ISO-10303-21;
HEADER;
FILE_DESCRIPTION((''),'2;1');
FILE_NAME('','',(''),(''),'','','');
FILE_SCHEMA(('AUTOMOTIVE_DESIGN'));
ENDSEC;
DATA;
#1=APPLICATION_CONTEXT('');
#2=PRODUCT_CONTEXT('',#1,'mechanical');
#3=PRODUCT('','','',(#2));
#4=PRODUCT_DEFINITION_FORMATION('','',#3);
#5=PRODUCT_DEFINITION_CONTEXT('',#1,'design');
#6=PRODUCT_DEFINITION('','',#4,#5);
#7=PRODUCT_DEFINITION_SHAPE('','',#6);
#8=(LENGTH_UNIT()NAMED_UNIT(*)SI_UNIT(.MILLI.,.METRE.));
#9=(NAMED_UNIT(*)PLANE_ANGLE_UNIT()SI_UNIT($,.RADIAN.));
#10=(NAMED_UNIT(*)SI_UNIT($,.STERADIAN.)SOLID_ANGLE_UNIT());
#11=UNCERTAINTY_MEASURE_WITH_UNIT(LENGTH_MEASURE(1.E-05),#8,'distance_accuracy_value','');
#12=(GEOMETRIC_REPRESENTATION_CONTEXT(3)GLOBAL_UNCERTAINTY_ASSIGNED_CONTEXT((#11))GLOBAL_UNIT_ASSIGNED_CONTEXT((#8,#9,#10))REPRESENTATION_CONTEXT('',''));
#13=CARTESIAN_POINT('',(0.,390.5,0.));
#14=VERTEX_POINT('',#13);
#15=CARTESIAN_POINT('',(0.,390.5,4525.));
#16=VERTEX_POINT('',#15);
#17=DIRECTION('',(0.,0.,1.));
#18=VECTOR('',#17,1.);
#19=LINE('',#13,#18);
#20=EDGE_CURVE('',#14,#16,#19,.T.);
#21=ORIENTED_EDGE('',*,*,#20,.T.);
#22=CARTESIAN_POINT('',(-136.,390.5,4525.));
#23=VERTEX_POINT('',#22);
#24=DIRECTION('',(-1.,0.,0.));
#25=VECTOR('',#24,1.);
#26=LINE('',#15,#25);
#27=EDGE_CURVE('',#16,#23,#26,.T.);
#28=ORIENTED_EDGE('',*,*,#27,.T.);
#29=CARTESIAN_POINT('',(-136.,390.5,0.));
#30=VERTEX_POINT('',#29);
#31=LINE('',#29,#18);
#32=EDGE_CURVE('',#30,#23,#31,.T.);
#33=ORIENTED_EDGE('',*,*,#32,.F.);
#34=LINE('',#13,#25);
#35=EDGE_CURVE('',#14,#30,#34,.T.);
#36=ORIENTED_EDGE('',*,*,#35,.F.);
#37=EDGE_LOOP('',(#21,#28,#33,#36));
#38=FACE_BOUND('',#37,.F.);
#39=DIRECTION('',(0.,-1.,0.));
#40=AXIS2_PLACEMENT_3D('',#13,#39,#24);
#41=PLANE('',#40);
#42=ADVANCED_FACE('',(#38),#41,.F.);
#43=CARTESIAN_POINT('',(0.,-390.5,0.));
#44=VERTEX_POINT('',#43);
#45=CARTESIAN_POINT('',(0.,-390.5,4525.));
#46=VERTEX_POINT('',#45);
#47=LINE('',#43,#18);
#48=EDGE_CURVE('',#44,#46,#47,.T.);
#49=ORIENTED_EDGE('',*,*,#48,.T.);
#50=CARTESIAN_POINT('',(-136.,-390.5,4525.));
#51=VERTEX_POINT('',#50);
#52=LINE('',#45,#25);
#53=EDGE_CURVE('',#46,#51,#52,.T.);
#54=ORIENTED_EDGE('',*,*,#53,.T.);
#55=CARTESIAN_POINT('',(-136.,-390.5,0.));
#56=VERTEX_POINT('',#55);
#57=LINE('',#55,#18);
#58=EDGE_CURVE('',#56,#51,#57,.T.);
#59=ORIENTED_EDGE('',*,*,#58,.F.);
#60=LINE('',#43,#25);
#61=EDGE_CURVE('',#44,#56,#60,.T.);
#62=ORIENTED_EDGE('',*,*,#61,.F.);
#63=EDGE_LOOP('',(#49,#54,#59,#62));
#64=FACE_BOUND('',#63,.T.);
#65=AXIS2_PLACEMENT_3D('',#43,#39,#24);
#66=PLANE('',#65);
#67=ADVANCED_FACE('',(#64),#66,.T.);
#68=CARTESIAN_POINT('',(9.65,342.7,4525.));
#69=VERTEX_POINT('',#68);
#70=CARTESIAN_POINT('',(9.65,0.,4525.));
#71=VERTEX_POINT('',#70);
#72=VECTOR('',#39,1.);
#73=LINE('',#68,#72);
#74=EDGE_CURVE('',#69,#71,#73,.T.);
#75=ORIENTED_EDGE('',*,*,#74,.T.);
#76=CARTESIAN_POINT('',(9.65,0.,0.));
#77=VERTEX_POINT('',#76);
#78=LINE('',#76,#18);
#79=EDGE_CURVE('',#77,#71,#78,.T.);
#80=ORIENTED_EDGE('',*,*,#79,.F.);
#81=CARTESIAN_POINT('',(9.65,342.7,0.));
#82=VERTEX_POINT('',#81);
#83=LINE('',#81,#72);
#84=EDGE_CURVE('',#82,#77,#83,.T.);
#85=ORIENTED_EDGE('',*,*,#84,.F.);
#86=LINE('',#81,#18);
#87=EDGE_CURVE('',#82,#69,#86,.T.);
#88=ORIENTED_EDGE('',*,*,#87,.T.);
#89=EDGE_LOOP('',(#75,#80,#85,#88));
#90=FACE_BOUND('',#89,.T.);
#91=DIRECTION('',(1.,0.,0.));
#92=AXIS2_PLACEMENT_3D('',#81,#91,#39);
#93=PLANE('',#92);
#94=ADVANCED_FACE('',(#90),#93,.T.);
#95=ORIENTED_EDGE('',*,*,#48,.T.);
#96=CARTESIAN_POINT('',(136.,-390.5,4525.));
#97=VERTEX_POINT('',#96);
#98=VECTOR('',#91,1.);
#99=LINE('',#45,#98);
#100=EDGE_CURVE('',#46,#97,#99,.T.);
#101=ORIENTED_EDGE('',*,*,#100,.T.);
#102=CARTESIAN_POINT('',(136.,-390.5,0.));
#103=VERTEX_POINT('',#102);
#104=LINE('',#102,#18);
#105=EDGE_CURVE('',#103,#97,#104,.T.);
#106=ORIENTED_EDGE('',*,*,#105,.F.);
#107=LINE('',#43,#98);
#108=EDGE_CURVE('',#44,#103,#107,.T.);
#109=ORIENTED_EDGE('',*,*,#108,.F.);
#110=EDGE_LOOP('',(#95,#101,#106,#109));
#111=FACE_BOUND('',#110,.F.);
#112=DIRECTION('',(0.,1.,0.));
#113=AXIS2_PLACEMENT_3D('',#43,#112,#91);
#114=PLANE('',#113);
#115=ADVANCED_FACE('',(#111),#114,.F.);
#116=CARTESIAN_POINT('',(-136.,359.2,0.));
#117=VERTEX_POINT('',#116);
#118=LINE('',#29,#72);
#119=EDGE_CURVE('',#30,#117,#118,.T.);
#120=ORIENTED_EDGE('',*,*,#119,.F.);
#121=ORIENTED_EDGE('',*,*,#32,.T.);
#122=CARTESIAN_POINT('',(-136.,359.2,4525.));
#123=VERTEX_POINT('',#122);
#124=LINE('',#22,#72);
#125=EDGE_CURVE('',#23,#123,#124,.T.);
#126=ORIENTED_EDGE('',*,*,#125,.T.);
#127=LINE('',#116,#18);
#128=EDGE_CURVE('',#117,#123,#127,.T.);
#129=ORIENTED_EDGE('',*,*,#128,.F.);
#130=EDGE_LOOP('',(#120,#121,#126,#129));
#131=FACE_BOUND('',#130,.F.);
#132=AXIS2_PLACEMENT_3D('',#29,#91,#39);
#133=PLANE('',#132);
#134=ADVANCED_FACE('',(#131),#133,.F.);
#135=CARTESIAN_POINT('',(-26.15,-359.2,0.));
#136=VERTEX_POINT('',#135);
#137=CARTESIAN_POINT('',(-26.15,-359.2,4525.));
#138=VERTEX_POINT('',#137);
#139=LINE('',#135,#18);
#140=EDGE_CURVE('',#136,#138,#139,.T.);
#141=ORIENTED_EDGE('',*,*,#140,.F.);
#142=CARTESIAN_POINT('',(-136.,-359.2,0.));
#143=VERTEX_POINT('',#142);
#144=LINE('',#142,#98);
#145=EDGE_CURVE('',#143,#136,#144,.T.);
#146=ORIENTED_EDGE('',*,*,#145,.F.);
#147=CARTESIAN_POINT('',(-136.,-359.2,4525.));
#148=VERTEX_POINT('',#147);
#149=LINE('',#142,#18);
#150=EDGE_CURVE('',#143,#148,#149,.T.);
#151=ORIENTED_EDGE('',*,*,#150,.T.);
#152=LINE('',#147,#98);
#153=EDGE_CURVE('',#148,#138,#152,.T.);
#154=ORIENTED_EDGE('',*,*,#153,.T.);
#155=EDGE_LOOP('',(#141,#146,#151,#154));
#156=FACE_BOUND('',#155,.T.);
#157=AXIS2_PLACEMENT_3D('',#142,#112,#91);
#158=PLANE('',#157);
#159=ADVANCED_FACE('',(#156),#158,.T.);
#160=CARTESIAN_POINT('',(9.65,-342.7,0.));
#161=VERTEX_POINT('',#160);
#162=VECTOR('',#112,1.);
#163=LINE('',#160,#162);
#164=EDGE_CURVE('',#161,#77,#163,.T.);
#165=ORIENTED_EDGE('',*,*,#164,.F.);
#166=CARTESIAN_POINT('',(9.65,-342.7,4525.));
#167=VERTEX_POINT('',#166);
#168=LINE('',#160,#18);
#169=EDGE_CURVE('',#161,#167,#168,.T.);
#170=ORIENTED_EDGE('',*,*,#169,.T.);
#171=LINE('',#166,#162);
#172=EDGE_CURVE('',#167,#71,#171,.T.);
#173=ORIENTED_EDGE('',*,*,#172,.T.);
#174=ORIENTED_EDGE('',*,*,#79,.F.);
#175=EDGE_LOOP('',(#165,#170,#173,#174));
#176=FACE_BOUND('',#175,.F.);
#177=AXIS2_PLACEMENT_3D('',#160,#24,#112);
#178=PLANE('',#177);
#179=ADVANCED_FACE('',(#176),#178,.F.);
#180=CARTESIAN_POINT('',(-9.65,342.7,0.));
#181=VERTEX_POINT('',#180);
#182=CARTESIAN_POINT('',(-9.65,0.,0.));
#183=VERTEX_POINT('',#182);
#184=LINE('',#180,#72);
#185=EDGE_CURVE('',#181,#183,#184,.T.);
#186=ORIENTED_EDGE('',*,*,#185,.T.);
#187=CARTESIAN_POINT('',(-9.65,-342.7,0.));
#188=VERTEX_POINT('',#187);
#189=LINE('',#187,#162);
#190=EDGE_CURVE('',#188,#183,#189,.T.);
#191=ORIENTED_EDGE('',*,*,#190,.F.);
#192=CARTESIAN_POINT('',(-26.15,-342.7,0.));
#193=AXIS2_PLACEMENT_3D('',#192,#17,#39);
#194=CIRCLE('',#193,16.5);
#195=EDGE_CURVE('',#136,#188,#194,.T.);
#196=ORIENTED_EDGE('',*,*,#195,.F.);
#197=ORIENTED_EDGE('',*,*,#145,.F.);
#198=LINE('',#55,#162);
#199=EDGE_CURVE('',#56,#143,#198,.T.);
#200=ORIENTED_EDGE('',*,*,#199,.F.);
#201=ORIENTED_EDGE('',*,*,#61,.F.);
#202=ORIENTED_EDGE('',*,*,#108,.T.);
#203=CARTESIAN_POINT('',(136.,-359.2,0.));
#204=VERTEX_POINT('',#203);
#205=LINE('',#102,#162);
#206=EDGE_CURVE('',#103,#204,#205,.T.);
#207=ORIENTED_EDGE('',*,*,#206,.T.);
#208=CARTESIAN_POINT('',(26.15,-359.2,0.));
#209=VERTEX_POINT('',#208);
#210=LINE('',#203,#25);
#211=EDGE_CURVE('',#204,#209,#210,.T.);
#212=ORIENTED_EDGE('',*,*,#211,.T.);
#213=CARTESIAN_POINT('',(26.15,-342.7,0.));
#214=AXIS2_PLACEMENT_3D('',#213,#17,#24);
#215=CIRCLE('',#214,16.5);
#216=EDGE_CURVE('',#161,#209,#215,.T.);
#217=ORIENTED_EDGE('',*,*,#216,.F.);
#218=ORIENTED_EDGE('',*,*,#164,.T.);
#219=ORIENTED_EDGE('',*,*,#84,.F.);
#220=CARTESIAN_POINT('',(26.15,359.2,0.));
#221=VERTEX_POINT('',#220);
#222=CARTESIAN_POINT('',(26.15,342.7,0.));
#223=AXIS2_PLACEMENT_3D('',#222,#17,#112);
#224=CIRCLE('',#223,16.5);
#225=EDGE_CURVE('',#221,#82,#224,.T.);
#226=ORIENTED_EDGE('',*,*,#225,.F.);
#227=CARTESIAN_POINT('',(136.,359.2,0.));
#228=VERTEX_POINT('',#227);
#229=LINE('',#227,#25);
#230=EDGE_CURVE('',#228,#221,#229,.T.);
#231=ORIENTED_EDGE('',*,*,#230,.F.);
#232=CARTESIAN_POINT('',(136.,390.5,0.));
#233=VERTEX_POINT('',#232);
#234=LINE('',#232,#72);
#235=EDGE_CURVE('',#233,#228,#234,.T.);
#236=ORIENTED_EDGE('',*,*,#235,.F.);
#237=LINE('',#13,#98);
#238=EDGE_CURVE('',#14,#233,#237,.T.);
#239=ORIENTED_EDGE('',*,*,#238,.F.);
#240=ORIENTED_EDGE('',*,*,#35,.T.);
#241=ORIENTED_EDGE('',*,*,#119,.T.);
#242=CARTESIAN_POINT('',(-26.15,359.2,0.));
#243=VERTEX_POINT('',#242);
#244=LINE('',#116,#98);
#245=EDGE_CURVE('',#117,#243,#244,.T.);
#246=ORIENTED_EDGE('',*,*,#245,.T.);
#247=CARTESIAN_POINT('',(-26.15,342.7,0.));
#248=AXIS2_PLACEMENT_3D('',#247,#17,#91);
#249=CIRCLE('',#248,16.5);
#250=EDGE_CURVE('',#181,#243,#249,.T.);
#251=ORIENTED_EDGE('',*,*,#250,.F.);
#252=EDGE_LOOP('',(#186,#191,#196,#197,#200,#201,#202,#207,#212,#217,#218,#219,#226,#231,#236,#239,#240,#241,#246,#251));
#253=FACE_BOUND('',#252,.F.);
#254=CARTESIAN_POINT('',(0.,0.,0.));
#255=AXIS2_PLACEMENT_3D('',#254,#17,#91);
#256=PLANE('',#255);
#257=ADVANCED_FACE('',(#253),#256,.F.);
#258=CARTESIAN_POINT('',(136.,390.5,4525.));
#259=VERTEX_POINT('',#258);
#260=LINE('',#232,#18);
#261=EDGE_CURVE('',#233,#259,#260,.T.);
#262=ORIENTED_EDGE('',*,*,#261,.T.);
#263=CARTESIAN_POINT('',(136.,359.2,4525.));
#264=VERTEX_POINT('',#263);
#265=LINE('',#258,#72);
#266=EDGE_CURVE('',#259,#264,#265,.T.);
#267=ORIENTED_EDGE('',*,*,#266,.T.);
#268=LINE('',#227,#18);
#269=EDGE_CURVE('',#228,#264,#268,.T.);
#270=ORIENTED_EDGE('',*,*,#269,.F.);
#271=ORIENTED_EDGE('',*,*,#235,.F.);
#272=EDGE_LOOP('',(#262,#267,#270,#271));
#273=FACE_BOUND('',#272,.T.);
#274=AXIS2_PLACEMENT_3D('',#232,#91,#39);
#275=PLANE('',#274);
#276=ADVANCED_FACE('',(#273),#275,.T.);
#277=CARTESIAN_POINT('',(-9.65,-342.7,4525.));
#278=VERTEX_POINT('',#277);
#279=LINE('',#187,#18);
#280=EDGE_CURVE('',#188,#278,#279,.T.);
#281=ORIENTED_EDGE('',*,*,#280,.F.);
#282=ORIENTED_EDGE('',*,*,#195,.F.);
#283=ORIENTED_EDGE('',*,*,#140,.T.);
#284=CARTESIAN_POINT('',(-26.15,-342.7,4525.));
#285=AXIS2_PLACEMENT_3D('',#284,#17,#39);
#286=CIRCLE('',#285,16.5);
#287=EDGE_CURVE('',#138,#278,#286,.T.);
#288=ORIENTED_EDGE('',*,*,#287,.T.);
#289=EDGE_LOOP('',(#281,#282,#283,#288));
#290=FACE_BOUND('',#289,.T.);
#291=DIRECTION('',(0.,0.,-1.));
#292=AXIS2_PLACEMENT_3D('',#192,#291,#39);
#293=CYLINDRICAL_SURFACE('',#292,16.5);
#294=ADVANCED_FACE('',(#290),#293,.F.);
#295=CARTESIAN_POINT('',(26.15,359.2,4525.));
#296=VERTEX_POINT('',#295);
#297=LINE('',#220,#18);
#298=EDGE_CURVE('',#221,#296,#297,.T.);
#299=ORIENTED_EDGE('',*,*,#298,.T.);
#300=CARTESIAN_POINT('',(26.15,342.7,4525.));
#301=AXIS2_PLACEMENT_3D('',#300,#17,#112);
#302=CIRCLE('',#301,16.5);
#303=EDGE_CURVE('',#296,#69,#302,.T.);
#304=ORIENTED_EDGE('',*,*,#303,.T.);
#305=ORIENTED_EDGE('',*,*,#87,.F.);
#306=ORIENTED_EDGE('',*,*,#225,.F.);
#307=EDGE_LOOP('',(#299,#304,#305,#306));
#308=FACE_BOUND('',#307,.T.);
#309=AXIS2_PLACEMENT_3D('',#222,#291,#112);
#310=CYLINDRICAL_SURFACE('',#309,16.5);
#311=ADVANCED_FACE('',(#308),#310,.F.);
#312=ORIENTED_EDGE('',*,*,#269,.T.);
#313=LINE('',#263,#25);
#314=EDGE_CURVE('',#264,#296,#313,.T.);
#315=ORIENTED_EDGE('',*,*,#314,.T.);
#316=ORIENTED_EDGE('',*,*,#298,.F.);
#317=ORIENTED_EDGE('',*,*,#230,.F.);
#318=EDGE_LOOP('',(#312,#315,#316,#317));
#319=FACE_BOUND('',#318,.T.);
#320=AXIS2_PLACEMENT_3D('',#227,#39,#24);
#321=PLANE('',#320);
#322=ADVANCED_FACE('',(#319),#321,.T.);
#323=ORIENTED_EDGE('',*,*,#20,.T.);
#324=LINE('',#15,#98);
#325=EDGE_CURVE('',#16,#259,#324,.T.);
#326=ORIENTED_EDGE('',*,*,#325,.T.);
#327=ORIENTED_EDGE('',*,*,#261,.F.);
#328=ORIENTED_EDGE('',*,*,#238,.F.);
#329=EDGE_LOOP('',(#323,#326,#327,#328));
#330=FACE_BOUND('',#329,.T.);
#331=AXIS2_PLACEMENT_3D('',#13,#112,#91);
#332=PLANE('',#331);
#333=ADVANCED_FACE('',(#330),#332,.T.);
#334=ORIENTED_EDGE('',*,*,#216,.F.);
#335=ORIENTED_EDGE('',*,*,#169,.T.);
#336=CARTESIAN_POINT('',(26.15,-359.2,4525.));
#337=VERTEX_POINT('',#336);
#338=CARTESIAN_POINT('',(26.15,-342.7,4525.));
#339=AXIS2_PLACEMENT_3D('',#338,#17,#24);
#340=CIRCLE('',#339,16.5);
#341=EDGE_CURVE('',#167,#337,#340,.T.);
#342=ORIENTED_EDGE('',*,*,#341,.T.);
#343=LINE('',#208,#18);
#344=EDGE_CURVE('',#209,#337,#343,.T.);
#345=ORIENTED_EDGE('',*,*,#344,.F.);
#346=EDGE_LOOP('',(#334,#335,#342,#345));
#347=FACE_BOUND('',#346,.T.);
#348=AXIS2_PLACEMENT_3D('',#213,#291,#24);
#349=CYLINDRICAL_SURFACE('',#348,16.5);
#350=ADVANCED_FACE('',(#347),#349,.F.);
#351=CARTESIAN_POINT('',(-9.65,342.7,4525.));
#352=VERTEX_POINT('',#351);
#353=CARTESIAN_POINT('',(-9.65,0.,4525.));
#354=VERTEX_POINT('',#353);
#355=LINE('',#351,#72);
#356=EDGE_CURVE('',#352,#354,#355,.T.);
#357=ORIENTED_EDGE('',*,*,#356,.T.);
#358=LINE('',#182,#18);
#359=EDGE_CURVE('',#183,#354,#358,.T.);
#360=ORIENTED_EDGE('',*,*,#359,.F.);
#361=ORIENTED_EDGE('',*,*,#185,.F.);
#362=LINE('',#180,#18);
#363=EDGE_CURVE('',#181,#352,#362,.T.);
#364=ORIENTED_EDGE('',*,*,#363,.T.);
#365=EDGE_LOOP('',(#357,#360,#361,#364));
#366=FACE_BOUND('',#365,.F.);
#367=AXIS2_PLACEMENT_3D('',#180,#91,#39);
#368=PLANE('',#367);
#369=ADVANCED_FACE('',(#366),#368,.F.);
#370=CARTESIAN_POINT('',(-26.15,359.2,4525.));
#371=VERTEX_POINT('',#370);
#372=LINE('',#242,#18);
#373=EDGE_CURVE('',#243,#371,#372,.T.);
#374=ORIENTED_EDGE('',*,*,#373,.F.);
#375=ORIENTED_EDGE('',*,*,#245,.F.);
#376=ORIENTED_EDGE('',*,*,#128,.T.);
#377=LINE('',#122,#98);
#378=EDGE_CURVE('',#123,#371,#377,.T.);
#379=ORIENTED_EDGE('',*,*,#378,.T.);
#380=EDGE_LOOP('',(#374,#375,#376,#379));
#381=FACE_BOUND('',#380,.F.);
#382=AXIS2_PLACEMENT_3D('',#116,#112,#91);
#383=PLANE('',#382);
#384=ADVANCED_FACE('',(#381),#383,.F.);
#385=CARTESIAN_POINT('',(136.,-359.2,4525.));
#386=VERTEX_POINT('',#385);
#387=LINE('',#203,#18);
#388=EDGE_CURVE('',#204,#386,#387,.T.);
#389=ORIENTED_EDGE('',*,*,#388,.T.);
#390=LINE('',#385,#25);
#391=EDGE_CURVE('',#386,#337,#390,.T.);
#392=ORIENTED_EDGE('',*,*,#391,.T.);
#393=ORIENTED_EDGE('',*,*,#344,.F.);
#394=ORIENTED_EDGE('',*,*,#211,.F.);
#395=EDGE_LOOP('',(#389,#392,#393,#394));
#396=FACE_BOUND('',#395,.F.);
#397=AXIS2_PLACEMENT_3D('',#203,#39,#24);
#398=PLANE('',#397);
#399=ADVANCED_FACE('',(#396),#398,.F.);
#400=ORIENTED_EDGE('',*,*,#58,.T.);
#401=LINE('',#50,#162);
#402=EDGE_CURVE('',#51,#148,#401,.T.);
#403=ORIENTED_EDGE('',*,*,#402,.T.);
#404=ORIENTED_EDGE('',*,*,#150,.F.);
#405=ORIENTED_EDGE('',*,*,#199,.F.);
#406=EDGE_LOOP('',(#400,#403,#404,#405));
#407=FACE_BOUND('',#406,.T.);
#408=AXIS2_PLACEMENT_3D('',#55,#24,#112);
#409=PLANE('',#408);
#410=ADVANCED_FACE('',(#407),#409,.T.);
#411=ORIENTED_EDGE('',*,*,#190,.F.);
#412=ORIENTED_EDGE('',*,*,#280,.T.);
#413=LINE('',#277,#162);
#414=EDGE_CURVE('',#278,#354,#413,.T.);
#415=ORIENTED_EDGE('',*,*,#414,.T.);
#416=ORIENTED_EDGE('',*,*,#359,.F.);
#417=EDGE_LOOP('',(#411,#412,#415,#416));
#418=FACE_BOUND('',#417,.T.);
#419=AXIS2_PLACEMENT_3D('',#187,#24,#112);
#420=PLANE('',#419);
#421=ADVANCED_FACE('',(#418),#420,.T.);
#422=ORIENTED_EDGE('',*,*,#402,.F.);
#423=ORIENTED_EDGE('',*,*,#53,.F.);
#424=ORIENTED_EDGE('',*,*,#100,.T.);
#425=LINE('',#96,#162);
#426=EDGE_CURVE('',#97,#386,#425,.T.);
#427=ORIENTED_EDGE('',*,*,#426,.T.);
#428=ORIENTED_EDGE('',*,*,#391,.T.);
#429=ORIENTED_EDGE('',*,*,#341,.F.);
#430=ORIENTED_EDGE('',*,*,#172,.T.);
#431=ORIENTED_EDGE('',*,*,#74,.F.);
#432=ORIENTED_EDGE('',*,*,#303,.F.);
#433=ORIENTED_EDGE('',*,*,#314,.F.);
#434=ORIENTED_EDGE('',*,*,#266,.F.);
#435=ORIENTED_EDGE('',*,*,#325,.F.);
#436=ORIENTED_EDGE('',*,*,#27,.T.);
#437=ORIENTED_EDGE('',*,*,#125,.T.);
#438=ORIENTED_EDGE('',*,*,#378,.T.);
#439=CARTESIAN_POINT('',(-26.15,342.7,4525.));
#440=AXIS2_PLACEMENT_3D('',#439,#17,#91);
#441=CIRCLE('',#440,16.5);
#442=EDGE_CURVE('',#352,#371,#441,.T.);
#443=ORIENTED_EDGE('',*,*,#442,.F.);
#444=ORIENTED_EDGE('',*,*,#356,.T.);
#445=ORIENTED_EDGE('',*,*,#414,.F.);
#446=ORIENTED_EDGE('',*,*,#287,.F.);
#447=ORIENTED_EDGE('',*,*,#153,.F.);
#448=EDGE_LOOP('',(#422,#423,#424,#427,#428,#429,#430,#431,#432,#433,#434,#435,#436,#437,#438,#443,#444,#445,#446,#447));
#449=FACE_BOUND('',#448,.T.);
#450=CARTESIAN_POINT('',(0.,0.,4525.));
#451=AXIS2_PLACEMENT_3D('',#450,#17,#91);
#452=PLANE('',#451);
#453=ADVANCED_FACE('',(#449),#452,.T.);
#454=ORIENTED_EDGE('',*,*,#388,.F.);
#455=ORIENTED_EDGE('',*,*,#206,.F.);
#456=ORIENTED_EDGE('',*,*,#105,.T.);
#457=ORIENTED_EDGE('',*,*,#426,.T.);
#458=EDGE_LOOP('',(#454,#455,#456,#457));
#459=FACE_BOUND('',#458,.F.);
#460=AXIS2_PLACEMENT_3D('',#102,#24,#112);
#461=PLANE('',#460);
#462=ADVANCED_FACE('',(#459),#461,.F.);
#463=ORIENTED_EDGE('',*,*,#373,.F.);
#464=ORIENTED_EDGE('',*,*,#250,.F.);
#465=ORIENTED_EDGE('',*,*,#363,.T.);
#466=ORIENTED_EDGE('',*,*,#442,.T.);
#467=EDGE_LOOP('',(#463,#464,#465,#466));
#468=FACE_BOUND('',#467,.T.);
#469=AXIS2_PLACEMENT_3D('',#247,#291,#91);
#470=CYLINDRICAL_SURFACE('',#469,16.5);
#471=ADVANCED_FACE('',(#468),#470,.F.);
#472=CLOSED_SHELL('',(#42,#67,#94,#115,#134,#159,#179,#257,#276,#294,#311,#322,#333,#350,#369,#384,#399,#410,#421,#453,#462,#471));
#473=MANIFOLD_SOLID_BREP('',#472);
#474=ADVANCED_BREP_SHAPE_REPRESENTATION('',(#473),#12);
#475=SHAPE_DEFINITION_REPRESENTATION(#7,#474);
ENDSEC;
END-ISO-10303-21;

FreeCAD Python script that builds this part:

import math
import FreeCAD as App
import Part
import Sketcher

V = App.Vector

doc = App.newDocument("Part")
body = doc.addObject("PartDesign::Body", "Body")

# Sketch on XY plane
sketch1 = doc.addObject("Sketcher::SketchObject", "Sketch")
body.addObject(sketch1)
sketch1.AttachmentSupport = (doc.XY_Plane, [""])
sketch1.MapMode = "FlatFace"
sketch1.addGeometry(Part.LineSegment(V(-136, -359, 0), V(-136, -390, 0)), False)
sketch1.addGeometry(Part.LineSegment(V(-136, -390, 0), V(136, -390, 0)), False)
sketch1.addGeometry(Part.LineSegment(V(136, -390, 0), V(136, -359, 0)), False)
sketch1.addGeometry(Part.LineSegment(V(136, -359, 0), V(26, -359, 0)), False)
sketch1.addGeometry(Part.ArcOfCircle(Part.Circle(V(26, -343, 0), V(0, 0, 1), 16), math.radians(180), math.radians(270)), False)
sketch1.addGeometry(Part.LineSegment(V(10, -343, 0), V(10, 343, 0)), False)
sketch1.addGeometry(Part.ArcOfCircle(Part.Circle(V(26, 343, 0), V(0, 0, 1), 16), math.radians(90), math.radians(180)), False)
sketch1.addGeometry(Part.LineSegment(V(26, 359, 0), V(136, 359, 0)), False)
sketch1.addGeometry(Part.LineSegment(V(136, 359, 0), V(136, 390, 0)), False)
sketch1.addGeometry(Part.LineSegment(V(136, 390, 0), V(-136, 390, 0)), False)
sketch1.addGeometry(Part.LineSegment(V(-136, 390, 0), V(-136, 359, 0)), False)
sketch1.addGeometry(Part.LineSegment(V(-136, 359, 0), V(-26, 359, 0)), False)
sketch1.addGeometry(Part.ArcOfCircle(Part.Circle(V(-26, 343, 0), V(0, 0, 1), 16), math.radians(0), math.radians(90)), False)
sketch1.addGeometry(Part.LineSegment(V(-10, 343, 0), V(-10, -343, 0)), False)
sketch1.addGeometry(Part.ArcOfCircle(Part.Circle(V(-26, -343, 0), V(0, 0, 1), 16), math.radians(-90), math.radians(0)), False)
sketch1.addGeometry(Part.LineSegment(V(-26, -359, 0), V(-136, -359, 0)), False)
sketch1.addConstraint(Sketcher.Constraint("Coincident", 0, 2, 1, 1))
sketch1.addConstraint(Sketcher.Constraint("Coincident", 1, 2, 2, 1))
sketch1.addConstraint(Sketcher.Constraint("Coincident", 2, 2, 3, 1))
sketch1.addConstraint(Sketcher.Constraint("Tangent", 3, 2, 4, 2))
sketch1.addConstraint(Sketcher.Constraint("Tangent", 4, 1, 5, 1))
sketch1.addConstraint(Sketcher.Constraint("Tangent", 5, 2, 6, 2))
sketch1.addConstraint(Sketcher.Constraint("Tangent", 6, 1, 7, 1))
sketch1.addConstraint(Sketcher.Constraint("Coincident", 7, 2, 8, 1))
sketch1.addConstraint(Sketcher.Constraint("Coincident", 8, 2, 9, 1))
sketch1.addConstraint(Sketcher.Constraint("Coincident", 9, 2, 10, 1))
sketch1.addConstraint(Sketcher.Constraint("Coincident", 10, 2, 11, 1))
sketch1.addConstraint(Sketcher.Constraint("Tangent", 11, 2, 12, 2))
sketch1.addConstraint(Sketcher.Constraint("Tangent", 12, 1, 13, 1))
sketch1.addConstraint(Sketcher.Constraint("Tangent", 13, 2, 14, 2))
sketch1.addConstraint(Sketcher.Constraint("Tangent", 14, 1, 15, 1))
sketch1.addConstraint(Sketcher.Constraint("Coincident", 15, 2, 0, 1))
sketch1.addConstraint(Sketcher.Constraint("Vertical", 0))
sketch1.addConstraint(Sketcher.Constraint("Horizontal", 1))
sketch1.addConstraint(Sketcher.Constraint("Vertical", 2))
sketch1.addConstraint(Sketcher.Constraint("Horizontal", 3))
sketch1.addConstraint(Sketcher.Constraint("Vertical", 5))
sketch1.addConstraint(Sketcher.Constraint("Horizontal", 7))
sketch1.addConstraint(Sketcher.Constraint("Vertical", 8))
sketch1.addConstraint(Sketcher.Constraint("Horizontal", 9))
sketch1.addConstraint(Sketcher.Constraint("Vertical", 10))
sketch1.addConstraint(Sketcher.Constraint("Horizontal", 11))
sketch1.addConstraint(Sketcher.Constraint("Vertical", 13))
sketch1.addConstraint(Sketcher.Constraint("Horizontal", 15))
sketch1.addConstraint(Sketcher.Constraint("Equal", 4, 6))
sketch1.addConstraint(Sketcher.Constraint("Equal", 6, 12))
sketch1.addConstraint(Sketcher.Constraint("Equal", 12, 14))
sketch1.addConstraint(Sketcher.Constraint("Symmetric", 4, 3, 12, 3, -1, 1))
sketch1.addConstraint(Sketcher.Constraint("Symmetric", 0, 2, 8, 2, -1, 1))
sketch1.addConstraint(Sketcher.Constraint("Symmetric", 7, 2, 10, 2, -2))
sketch1.addConstraint(Sketcher.Constraint("Symmetric", 2, 2, 15, 2, -2))
sketch1.addConstraint(Sketcher.Constraint("Radius", 4, 16.5))
sketch1.addConstraint(Sketcher.Constraint("DistanceY", 0, 2, 0, 1, 31.3))
sketch1.addConstraint(Sketcher.Constraint("DistanceX", 0, 2, -1, 1, 136.0))
sketch1.addConstraint(Sketcher.Constraint("DistanceY", 0, 2, -1, 1, 390.5))
sketch1.addConstraint(Sketcher.Constraint("DistanceX", -1, 1, 4, 1, 9.65))
pad1 = doc.addObject("PartDesign::Pad", "Pad")
body.addObject(pad1)
pad1.Profile = sketch1
pad1.Length = 4525

doc.recompute()
